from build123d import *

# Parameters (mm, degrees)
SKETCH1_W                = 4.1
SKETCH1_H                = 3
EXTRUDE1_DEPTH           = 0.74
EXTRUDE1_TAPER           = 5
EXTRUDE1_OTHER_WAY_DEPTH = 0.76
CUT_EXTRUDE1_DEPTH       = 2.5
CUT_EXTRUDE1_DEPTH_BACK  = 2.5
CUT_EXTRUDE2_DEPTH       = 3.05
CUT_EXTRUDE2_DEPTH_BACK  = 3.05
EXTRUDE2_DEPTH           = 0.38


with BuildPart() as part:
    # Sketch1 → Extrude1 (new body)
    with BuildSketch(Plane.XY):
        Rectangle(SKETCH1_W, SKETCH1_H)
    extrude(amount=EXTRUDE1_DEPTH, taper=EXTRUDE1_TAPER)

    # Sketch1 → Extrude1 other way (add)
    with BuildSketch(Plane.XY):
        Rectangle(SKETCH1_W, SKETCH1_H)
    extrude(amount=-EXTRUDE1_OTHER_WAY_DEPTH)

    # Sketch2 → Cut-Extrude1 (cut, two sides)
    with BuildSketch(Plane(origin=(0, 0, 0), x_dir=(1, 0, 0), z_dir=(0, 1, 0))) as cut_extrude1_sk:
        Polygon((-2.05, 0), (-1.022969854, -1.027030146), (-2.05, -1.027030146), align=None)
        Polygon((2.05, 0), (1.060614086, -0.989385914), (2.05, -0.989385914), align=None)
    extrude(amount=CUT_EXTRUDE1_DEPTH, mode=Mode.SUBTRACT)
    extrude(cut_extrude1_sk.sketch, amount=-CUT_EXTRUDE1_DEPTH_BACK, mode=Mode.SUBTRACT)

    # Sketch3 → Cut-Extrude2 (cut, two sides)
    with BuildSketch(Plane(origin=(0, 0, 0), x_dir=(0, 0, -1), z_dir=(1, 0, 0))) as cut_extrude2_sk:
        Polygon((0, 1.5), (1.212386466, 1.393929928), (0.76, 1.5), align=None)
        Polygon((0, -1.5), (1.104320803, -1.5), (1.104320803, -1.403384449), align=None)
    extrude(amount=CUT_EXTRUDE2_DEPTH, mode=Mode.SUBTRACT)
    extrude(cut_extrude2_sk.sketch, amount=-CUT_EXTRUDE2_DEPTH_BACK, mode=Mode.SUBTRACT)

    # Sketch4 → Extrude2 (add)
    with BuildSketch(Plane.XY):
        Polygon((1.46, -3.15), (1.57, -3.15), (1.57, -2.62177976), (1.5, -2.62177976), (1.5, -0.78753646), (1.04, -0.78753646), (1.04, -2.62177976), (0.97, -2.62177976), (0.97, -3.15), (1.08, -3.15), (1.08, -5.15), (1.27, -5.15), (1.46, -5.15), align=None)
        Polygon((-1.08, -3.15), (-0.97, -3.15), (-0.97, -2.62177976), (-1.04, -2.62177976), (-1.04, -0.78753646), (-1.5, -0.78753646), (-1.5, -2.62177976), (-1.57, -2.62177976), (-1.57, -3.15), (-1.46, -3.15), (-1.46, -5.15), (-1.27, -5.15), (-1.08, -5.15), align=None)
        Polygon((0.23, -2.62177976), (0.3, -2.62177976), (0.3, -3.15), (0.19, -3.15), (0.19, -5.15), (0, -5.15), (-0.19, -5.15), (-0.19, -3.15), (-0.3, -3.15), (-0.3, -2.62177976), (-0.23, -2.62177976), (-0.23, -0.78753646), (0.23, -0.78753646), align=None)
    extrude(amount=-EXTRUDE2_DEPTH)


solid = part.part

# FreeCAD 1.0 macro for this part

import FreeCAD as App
import Part
import Sketcher
from FreeCAD import Vector
Q = App.Units.Quantity


def add_polygon(sketch, points):
    """Adds a closed chain of lines whose ends are joined by coincident constraints."""
    first, n = sketch.GeometryCount, len(points)
    for a, b in zip(points, points[1:] + points[:1]):
        sketch.addGeometry(Part.LineSegment(App.Vector(*a, 0), App.Vector(*b, 0)), False)
    for i in range(n):
        sketch.addConstraint(Sketcher.Constraint("Coincident", first + i, 2, first + (i + 1) % n, 1))

doc = App.newDocument("Part")
body = doc.addObject("PartDesign::Body", "Body")

sketch1 = body.newObject("Sketcher::SketchObject", "Sketch")
sketch1.AttachmentSupport = (doc.getObject("XY_Plane"), [""])
sketch1.MapMode = "FlatFace"
add_polygon(sketch1, [(-2, 1.5), (-2, -1.5), (2, -1.5), (2, 1.5)])
sketch1.addConstraint([
    Sketcher.Constraint("Vertical", 0),
    Sketcher.Constraint("Horizontal", 1),
    Sketcher.Constraint("Vertical", 2),
    Sketcher.Constraint("Horizontal", 3),
    Sketcher.Constraint("Symmetric", 0, 2, 2, 2, -1, 1),
    Sketcher.Constraint("DistanceY", 0, 2, 0, 1, 3.0),
    Sketcher.Constraint("DistanceX", 1, 1, 1, 2, 4.1),
])
pad1 = body.newObject("PartDesign::Pad", "Pad")
pad1.Profile = sketch1
pad1.Length = 0.74
pad1.TaperAngle = -5

sketch2 = body.newObject("Sketcher::SketchObject", "Sketch001")
sketch2.AttachmentSupport = (doc.getObject("XY_Plane"), [""])
sketch2.MapMode = "FlatFace"
add_polygon(sketch2, [(-2, 1.5), (-2, -1.5), (2, -1.5), (2, 1.5)])
sketch2.addConstraint([
    Sketcher.Constraint("Vertical", 0),
    Sketcher.Constraint("Horizontal", 1),
    Sketcher.Constraint("Vertical", 2),
    Sketcher.Constraint("Horizontal", 3),
    Sketcher.Constraint("Symmetric", 0, 2, 2, 2, -1, 1),
    Sketcher.Constraint("DistanceY", 0, 2, 0, 1, 3.0),
    Sketcher.Constraint("DistanceX", 1, 1, 1, 2, 4.1),
])
pad2 = body.newObject("PartDesign::Pad", "Pad001")
pad2.Profile = sketch2
pad2.Length = 0.76
pad2.Reversed = True

sketch3 = body.newObject("Sketcher::SketchObject", "Sketch002")
sketch3.AttachmentSupport = (doc.getObject("XZ_Plane"), [""])
sketch3.MapMode = "FlatFace"
add_polygon(sketch3, [(-1, 1), (-2, 0), (-2, 1)])
add_polygon(sketch3, [(2, 0), (1.1, 1), (2, 1)])
sketch3.addConstraint([
    Sketcher.Constraint("Vertical", 1),
    Sketcher.Constraint("Horizontal", 2),
    Sketcher.Constraint("Horizontal", 4),
    Sketcher.Constraint("Vertical", 5),
    Sketcher.Constraint("Symmetric", 0, 2, 5, 2, -1, 1),
    Sketcher.Constraint("PointOnObject", 0, 2, -1),
    Sketcher.Constraint("Perpendicular", 0, 3),
    Sketcher.Constraint("Equal", 2, 1),
    Sketcher.Constraint("DistanceX", 1, 2, 4, 2, 4.1),
    Sketcher.Constraint("DistanceX", 2, 1, 2, 2, 1.02703),
    Sketcher.Constraint("DistanceX", 4, 1, 4, 2, 0.989386),
])
pocket1 = body.newObject("PartDesign::Pocket", "Pocket")
pocket1.Profile = sketch3
pocket1.Type = "ThroughAll"
pocket1.Midplane = True

sketch4 = body.newObject("Sketcher::SketchObject", "Sketch003")
sketch4.AttachmentSupport = (doc.getObject("YZ_Plane"), [""])
sketch4.MapMode = "FlatFace"
add_polygon(sketch4, [(1.5, 0), (1.39, -1.21), (1.5, -0.76)])
add_polygon(sketch4, [(-1.5, 0), (-1.5, -1.1), (-1.4, -1.1)])
sketch4.addConstraint([
    Sketcher.Constraint("Vertical", 2),
    Sketcher.Constraint("Vertical", 3),
    Sketcher.Constraint("Horizontal", 4),
    Sketcher.Constraint("Symmetric", 2, 2, 5, 2, -1, 1),
    Sketcher.Constraint("PointOnObject", 2, 2, -1),
    Sketcher.Constraint("Angle", 0, Q("-95 deg")),
    Sketcher.Constraint("Angle", 5, Q("95 deg")),
    Sketcher.Constraint("DistanceX", 3, 2, 1, 2, 3.0),
    Sketcher.Constraint("DistanceY", 2, 1, 2, 2, 0.76),
    Sketcher.Constraint("DistanceY", 3, 2, 3, 1, 1.104321),
    Sketcher.Constraint("DistanceX", -1, 1, 0, 2, 1.39393),
])
pocket2 = body.newObject("PartDesign::Pocket", "Pocket001")
pocket2.Profile = sketch4
pocket2.Type = "ThroughAll"
pocket2.Midplane = True

sketch5 = body.newObject("Sketcher::SketchObject", "Sketch004")
sketch5.AttachmentSupport = (doc.getObject("XY_Plane"), [""])
sketch5.MapMode = "FlatFace"
add_polygon(sketch5, [(1.46, -3.15), (1.57, -3.15), (1.57, -2.62), (1.5, -2.62), (1.5, -0.79), (1.04, -0.79), (1.04, -2.62), (0.97, -2.62), (0.97, -3.15), (1.08, -3.15), (1.08, -5.15), (1.46, -5.15)])
add_polygon(sketch5, [(-1.08, -3.15), (-0.97, -3.15), (-0.97, -2.62), (-1.04, -2.62), (-1.04, -0.79), (-1.5, -0.79), (-1.5, -2.62), (-1.57, -2.62), (-1.57, -3.15), (-1.46, -3.15), (-1.46, -5.15), (-1.08, -5.15)])
add_polygon(sketch5, [(0.3, -2.62), (0.23, -2.62), (0.23, -0.79), (-0.23, -0.79), (-0.23, -2.62), (-0.3, -2.62), (-0.3, -3.15), (-0.19, -3.15), (-0.19, -5.15), (0.19, -5.15), (0.19, -3.15), (0.3, -3.15)])
sketch5.addConstraint([
    Sketcher.Constraint("Horizontal", 0),
    Sketcher.Constraint("Vertical", 1),
    Sketcher.Constraint("Horizontal", 2),
    Sketcher.Constraint("Vertical", 3),
    Sketcher.Constraint("Horizontal", 4),
    Sketcher.Constraint("Vertical", 5),
    Sketcher.Constraint("Horizontal", 6),
    Sketcher.Constraint("Vertical", 7),
    Sketcher.Constraint("Horizontal", 8),
    Sketcher.Constraint("Vertical", 9),
    Sketcher.Constraint("Horizontal", 10),
    Sketcher.Constraint("Vertical", 11),
    Sketcher.Constraint("Horizontal", 12),
    Sketcher.Constraint("Vertical", 13),
    Sketcher.Constraint("Horizontal", 14),
    Sketcher.Constraint("Vertical", 15),
    Sketcher.Constraint("Horizontal", 16),
    Sketcher.Constraint("Vertical", 17),
    Sketcher.Constraint("Horizontal", 18),
    Sketcher.Constraint("Vertical", 19),
    Sketcher.Constraint("Horizontal", 20),
    Sketcher.Constraint("Vertical", 21),
    Sketcher.Constraint("Horizontal", 22),
    Sketcher.Constraint("Vertical", 23),
    Sketcher.Constraint("Horizontal", 24),
    Sketcher.Constraint("Vertical", 25),
    Sketcher.Constraint("Horizontal", 26),
    Sketcher.Constraint("Vertical", 27),
    Sketcher.Constraint("Horizontal", 28),
    Sketcher.Constraint("Vertical", 29),
    Sketcher.Constraint("Horizontal", 30),
    Sketcher.Constraint("Vertical", 31),
    Sketcher.Constraint("Horizontal", 32),
    Sketcher.Constraint("Vertical", 33),
    Sketcher.Constraint("Horizontal", 34),
    Sketcher.Constraint("Vertical", 35),
    Sketcher.Constraint("Symmetric", 7, 2, 12, 2, -2),
    Sketcher.Constraint("Symmetric", 5, 2, 14, 2, -2),
    Sketcher.Constraint("Symmetric", 3, 2, 16, 2, -2),
    Sketcher.Constraint("Symmetric", 1, 2, 18, 2, -2),
    Sketcher.Constraint("Symmetric", 11, 2, 20, 2, -2),
    Sketcher.Constraint("Symmetric", 9, 2, 22, 2, -2),
    Sketcher.Constraint("Symmetric", 24, 2, 27, 2, -2),
    Sketcher.Constraint("Symmetric", 30, 2, 33, 2, -2),
    Sketcher.Constraint("Horizontal", 2, 2, 5, 2),
    Sketcher.Constraint("Horizontal", 0, 2, 7, 2),
    Sketcher.Constraint("Horizontal", 18, 2, 24, 2),
    Sketcher.Constraint("Horizontal", 16, 2, 25, 2),
    Sketcher.Constraint("Horizontal", 23, 2, 29, 2),
    Sketcher.Constraint("Horizontal", 22, 2, 31, 2),
    Sketcher.Constraint("Equal", 2, 6),
    Sketcher.Constraint("Equal", 0, 8),
    Sketcher.Constraint("Equal", 18, 24),
    Sketcher.Constraint("Equal", 16, 26),
    Sketcher.Constraint("Equal", 24, 28),
    Sketcher.Constraint("Equal", 20, 30),
    Sketcher.Constraint("DistanceY", 9, 2, 9, 1, 2.0),
    Sketcher.Constraint("DistanceX", 0, 1, 0, 2, 0.11),
    Sketcher.Constraint("DistanceX", 2, 2, 2, 1, 0.07),
    Sketcher.Constraint("DistanceX", 4, 2, 4, 1, 0.46),
    Sketcher.Constraint("DistanceX", -1, 1, 2, 2, 1.5),
    Sketcher.Constraint("DistanceY", 0, 2, -1, 1, 3.15),
    Sketcher.Constraint("DistanceY", 1, 1, 1, 2, 0.52822),
    Sketcher.Constraint("DistanceY", 3, 1, 3, 2, 1.834243),
])
pad3 = body.newObject("PartDesign::Pad", "Pad002")
pad3.Profile = sketch5
pad3.Length = 0.38
pad3.Reversed = True

doc.recompute()
